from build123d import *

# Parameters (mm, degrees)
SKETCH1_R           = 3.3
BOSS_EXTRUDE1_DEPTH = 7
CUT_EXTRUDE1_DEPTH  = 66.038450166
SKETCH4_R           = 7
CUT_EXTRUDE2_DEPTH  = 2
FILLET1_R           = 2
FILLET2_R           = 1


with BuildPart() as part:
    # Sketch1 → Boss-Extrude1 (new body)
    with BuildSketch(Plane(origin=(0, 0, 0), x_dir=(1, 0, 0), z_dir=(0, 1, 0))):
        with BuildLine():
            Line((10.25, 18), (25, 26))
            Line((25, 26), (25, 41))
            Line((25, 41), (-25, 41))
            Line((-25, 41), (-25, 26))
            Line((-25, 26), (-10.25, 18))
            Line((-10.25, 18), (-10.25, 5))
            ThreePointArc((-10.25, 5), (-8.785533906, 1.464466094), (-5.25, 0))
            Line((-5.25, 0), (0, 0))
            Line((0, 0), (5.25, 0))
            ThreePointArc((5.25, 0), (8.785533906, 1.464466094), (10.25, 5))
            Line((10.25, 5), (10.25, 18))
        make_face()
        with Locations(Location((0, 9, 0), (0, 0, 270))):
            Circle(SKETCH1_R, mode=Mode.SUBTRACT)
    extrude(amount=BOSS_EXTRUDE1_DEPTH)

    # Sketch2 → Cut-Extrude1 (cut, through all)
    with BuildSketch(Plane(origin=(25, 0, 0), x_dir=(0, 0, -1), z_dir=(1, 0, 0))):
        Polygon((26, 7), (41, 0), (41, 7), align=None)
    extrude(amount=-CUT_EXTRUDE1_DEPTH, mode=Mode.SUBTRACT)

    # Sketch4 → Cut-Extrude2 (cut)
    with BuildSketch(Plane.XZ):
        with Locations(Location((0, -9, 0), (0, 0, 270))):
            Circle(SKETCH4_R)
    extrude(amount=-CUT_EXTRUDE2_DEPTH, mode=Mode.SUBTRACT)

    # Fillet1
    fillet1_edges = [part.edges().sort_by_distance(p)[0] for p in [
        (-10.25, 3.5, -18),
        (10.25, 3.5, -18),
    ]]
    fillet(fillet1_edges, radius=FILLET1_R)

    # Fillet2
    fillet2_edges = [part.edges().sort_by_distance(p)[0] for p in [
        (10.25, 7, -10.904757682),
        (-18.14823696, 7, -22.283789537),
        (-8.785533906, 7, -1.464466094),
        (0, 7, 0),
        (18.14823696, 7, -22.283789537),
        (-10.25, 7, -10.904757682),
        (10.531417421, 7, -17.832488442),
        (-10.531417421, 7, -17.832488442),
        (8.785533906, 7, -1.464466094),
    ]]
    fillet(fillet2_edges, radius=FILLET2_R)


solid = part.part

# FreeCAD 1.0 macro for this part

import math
import FreeCAD as App
import Part
import Sketcher

V = App.Vector
Q = App.Units.Quantity


def edges_at(feature, points):
    """Names of the edges that pass closest to the given points."""
    edges = feature.Shape.Edges
    near = lambda p: min(range(len(edges)), key=lambda i: edges[i].distToShape(Part.Vertex(*p))[0])
    return sorted({f"Edge{near(p) + 1}" for p in points})


def add_polygon(sketch, points):
    """Adds a closed chain of lines whose ends are joined by coincident constraints."""
    first, n = sketch.GeometryCount, len(points)
    for a, b in zip(points, points[1:] + points[:1]):
        sketch.addGeometry(Part.LineSegment(App.Vector(*a, 0), App.Vector(*b, 0)), False)
    for i in range(n):
        sketch.addConstraint(Sketcher.Constraint("Coincident", first + i, 2, first + (i + 1) % n, 1))

doc = App.newDocument("Part")
body = doc.addObject("PartDesign::Body", "Body")

sketch1 = body.newObject("Sketcher::SketchObject", "Sketch")
sketch1.AttachmentSupport = (doc.getObject("XZ_Plane"), [""])
sketch1.MapMode = "FlatFace"
sketch1.addGeometry(Part.LineSegment(V(10.2, -18, 0), V(25, -26, 0)), False)
sketch1.addGeometry(Part.LineSegment(V(25, -26, 0), V(25, -41, 0)), False)
sketch1.addGeometry(Part.LineSegment(V(25, -41, 0), V(-25, -41, 0)), False)
sketch1.addGeometry(Part.LineSegment(V(-25, -41, 0), V(-25, -26, 0)), False)
sketch1.addGeometry(Part.LineSegment(V(-25, -26, 0), V(-10.2, -18, 0)), False)
sketch1.addGeometry(Part.LineSegment(V(-10.2, -18, 0), V(-10.2, -5, 0)), False)
sketch1.addGeometry(Part.ArcOfCircle(Part.Circle(V(-5.2, -5, 0), V(0, 0, 1), 5), math.radians(90), math.radians(180)), False)
sketch1.addGeometry(Part.LineSegment(V(-5.2, 0, 0), V(5.2, 0, 0)), False)
sketch1.addGeometry(Part.ArcOfCircle(Part.Circle(V(5.2, -5, 0), V(0, 0, 1), 5), math.radians(0), math.radians(90)), False)
sketch1.addGeometry(Part.LineSegment(V(10.2, -5, 0), V(10.2, -18, 0)), False)
sketch1.addGeometry(Part.Circle(V(0, -9, 0), V(0, 0, 1), 3.3), False)
sketch1.addConstraint(Sketcher.Constraint("Coincident", 0, 2, 1, 1))
sketch1.addConstraint(Sketcher.Constraint("Coincident", 1, 2, 2, 1))
sketch1.addConstraint(Sketcher.Constraint("Coincident", 2, 2, 3, 1))
sketch1.addConstraint(Sketcher.Constraint("Coincident", 3, 2, 4, 1))
sketch1.addConstraint(Sketcher.Constraint("Coincident", 4, 2, 5, 1))
sketch1.addConstraint(Sketcher.Constraint("Tangent", 5, 2, 6, 2))
sketch1.addConstraint(Sketcher.Constraint("Tangent", 6, 1, 7, 1))
sketch1.addConstraint(Sketcher.Constraint("Tangent", 7, 2, 8, 2))
sketch1.addConstraint(Sketcher.Constraint("Tangent", 8, 1, 9, 1))
sketch1.addConstraint(Sketcher.Constraint("Coincident", 9, 2, 0, 1))
sketch1.addConstraint(Sketcher.Constraint("Vertical", 1))
sketch1.addConstraint(Sketcher.Constraint("Horizontal", 2))
sketch1.addConstraint(Sketcher.Constraint("Vertical", 3))
sketch1.addConstraint(Sketcher.Constraint("Vertical", 5))
sketch1.addConstraint(Sketcher.Constraint("Horizontal", 7))
sketch1.addConstraint(Sketcher.Constraint("Vertical", 9))
sketch1.addConstraint(Sketcher.Constraint("Equal", 6, 8))
sketch1.addConstraint(Sketcher.Constraint("Symmetric", 6, 1, 7, 2, -1, 1))
sketch1.addConstraint(Sketcher.Constraint("Symmetric", 0, 2, 3, 2, -2))
sketch1.addConstraint(Sketcher.Constraint("PointOnObject", 10, 3, -2))
sketch1.addConstraint(Sketcher.Constraint("Horizontal", 4, 2, 9, 2))
sketch1.addConstraint(Sketcher.Constraint("Radius", 6, Q("5 mm")))
sketch1.addConstraint(Sketcher.Constraint("Diameter", 10, Q("6.6 mm")))
sketch1.addConstraint(Sketcher.Constraint("DistanceX", 2, 2, 2, 1, Q("50 mm")))
sketch1.addConstraint(Sketcher.Constraint("DistanceY", 1, 2, 1, 1, Q("15 mm")))
sketch1.addConstraint(Sketcher.Constraint("DistanceY", 5, 1, 5, 2, Q("13 mm")))
sketch1.addConstraint(Sketcher.Constraint("DistanceX", 7, 1, 7, 2, Q("10.5 mm")))
sketch1.addConstraint(Sketcher.Constraint("DistanceY", 10, 3, -1, 1, Q("9 mm")))
sketch1.addConstraint(Sketcher.Constraint("DistanceY", 0, 2, -1, 1, Q("26 mm")))
pad1 = body.newObject("PartDesign::Pad", "Pad")
pad1.Profile = sketch1
pad1.Length = 7
pad1.Reversed = True

sketch2 = body.newObject("Sketcher::SketchObject", "Sketch001")
sketch2.AttachmentSupport = (doc.getObject("YZ_Plane"), [""])
sketch2.MapMode = "FlatFace"
sketch2.AttachmentOffset = App.Placement(V(0, 0, 25), App.Rotation())
add_polygon(sketch2, [(7, -26), (0, -41), (7, -41)])
sketch2.addConstraint(Sketcher.Constraint("Horizontal", 1))
sketch2.addConstraint(Sketcher.Constraint("Vertical", 2))
sketch2.addConstraint(Sketcher.Constraint("PointOnObject", 0, 2, -2))
sketch2.addConstraint(Sketcher.Constraint("DistanceX", 1, 1, 1, 2, Q("7 mm")))
sketch2.addConstraint(Sketcher.Constraint("DistanceY", 2, 1, 2, 2, Q("15 mm")))
sketch2.addConstraint(Sketcher.Constraint("DistanceY", 0, 2, -1, 1, Q("41 mm")))
pocket1 = body.newObject("PartDesign::Pocket", "Pocket")
pocket1.Profile = sketch2
pocket1.Type = "ThroughAll"

sketch3 = body.newObject("Sketcher::SketchObject", "Sketch002")
sketch3.AttachmentSupport = (doc.getObject("XZ_Plane"), [""])
sketch3.MapMode = "FlatFace"
sketch3.addGeometry(Part.Circle(V(0, -9, 0), V(0, 0, 1), 7), False)
sketch3.addConstraint(Sketcher.Constraint("PointOnObject", 0, 3, -2))
sketch3.addConstraint(Sketcher.Constraint("Diameter", 0, Q("14 mm")))
sketch3.addConstraint(Sketcher.Constraint("DistanceY", 0, 3, -1, 1, Q("9 mm")))
pocket2 = body.newObject("PartDesign::Pocket", "Pocket001")
pocket2.Profile = sketch3
pocket2.Length = 2
doc.recompute()

fillet = body.newObject("PartDesign::Fillet", "Fillet")
fillet.Base = (pocket2, edges_at(pocket2, [(-10.25, 3.5, -18), (10.25, 3.5, -18)]))
fillet.Radius = 2
doc.recompute()

fillet2 = body.newObject("PartDesign::Fillet", "Fillet001")
fillet2.Base = (fillet, edges_at(fillet, [
    (10.25, 7, -10.905),
    (-18.148, 7, -22.284),
    (-8.786, 7, -1.464),
    (0, 7, 0),
    (18.148, 7, -22.284),
    (-10.25, 7, -10.905),
    (10.531, 7, -17.832),
    (-10.531, 7, -17.832),
    (8.786, 7, -1.464),
]))
fillet2.Radius = 1

doc.recompute()
